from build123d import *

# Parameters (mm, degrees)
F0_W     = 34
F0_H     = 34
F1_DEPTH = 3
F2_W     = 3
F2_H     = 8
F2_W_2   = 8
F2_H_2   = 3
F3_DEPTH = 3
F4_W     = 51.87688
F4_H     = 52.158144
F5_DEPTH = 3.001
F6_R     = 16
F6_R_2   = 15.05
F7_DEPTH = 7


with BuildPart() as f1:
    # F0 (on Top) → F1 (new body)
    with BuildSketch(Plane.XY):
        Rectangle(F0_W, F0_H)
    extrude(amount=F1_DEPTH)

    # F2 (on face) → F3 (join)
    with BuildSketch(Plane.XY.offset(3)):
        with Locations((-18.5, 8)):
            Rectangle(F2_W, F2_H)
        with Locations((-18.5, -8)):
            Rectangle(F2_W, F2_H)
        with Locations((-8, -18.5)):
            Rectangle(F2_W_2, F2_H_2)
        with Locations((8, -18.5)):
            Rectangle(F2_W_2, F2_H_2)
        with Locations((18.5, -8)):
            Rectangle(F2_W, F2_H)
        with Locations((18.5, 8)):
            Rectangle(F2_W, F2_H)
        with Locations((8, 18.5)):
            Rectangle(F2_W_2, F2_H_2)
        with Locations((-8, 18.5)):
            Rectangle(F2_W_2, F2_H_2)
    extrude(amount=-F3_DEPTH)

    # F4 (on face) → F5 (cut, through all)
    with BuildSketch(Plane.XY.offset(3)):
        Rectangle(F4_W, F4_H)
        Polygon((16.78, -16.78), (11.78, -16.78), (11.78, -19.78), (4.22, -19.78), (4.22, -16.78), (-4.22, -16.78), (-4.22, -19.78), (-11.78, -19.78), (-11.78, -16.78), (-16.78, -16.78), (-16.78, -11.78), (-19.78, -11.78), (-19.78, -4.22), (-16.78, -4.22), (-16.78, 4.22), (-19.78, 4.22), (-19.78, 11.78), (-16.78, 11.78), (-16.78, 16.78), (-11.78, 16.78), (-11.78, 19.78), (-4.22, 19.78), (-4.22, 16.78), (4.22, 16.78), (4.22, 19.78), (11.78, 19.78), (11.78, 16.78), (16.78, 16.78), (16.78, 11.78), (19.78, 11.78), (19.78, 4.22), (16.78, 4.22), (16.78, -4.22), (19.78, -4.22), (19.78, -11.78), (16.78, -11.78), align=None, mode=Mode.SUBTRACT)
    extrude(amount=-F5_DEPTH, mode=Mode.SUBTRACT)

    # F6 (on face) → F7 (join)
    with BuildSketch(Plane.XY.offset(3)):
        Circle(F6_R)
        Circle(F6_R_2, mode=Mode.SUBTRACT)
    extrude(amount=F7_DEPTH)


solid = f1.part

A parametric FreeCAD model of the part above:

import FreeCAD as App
import Part
import Sketcher

V = App.Vector

doc = App.newDocument("Part")
params = doc.addObject("Spreadsheet::Sheet", "Params")
for row, (alias, value) in enumerate([
    ("sketch1_width", "34 mm"),
    ("pad1_length", "3 mm"),
    ("sketch2_width", "3 mm"),
    ("sketch2_width2", "8 mm"),
    ("pad2_length", "3 mm"),
    ("sketch3_width", "5 mm"),
    ("sketch3_width2", "3 mm"),
    ("sketch3_width3", "7.56 mm"),
    ("sketch4_diameter", "32 mm"),
    ("sketch4_diameter2", "30.1 mm"),
    ("pad3_length", "7 mm"),
], start=1):
    params.set(f"A{row}", alias)
    params.set(f"B{row}", "=" + value)
    params.setAlias(f"B{row}", alias)

body = doc.addObject("PartDesign::Body", "Body")

# Sketch on XY plane
sketch1 = body.newObject("Sketcher::SketchObject", "Sketch")
sketch1.AttachmentSupport = (doc.getObject("XY_Plane"), [""])
sketch1.MapMode = "FlatFace"
sketch1.addGeometry([
    Part.LineSegment(V(-17, 17, 0), V(-17, -17, 0)),
    Part.LineSegment(V(-17, -17, 0), V(17, -17, 0)),
    Part.LineSegment(V(17, -17, 0), V(17, 17, 0)),
    Part.LineSegment(V(17, 17, 0), V(-17, 17, 0)),
], False)
sketch1.addConstraint([
    Sketcher.Constraint("Coincident", 0, 2, 1, 1),
    Sketcher.Constraint("Coincident", 1, 2, 2, 1),
    Sketcher.Constraint("Coincident", 2, 2, 3, 1),
    Sketcher.Constraint("Coincident", 3, 2, 0, 1),
    Sketcher.Constraint("Vertical", 0),
    Sketcher.Constraint("Horizontal", 1),
    Sketcher.Constraint("Vertical", 2),
    Sketcher.Constraint("Horizontal", 3),
    Sketcher.Constraint("Symmetric", 0, 2, 2, 2, -1, 1),
    Sketcher.Constraint("Equal", 3, 0),
    Sketcher.Constraint("DistanceX", 1, 1, 1, 2, 34.0),
])
sketch1.setExpression("Constraints[10]", "Params.sketch1_width")
pad1 = body.newObject("PartDesign::Pad", "Pad")
pad1.Profile = sketch1
pad1.setExpression("Length", "Params.pad1_length")

# Sketch on XY plane
sketch2 = body.newObject("Sketcher::SketchObject", "Sketch001")
sketch2.AttachmentSupport = (doc.getObject("XY_Plane"), [""])
sketch2.MapMode = "FlatFace"
sketch2.AttachmentOffset = App.Placement(V(0, 0, 3), App.Rotation())
sketch2.addGeometry([
    Part.LineSegment(V(-20, 12, 0), V(-20, 4, 0)),  # 0
    Part.LineSegment(V(-20, 4, 0), V(-17, 4, 0)),  # 1
    Part.LineSegment(V(-17, 4, 0), V(-17, 12, 0)),  # 2
    Part.LineSegment(V(-17, 12, 0), V(-20, 12, 0)),  # 3
    Part.LineSegment(V(-20, -4, 0), V(-20, -12, 0)),  # 4
    Part.LineSegment(V(-20, -12, 0), V(-17, -12, 0)),  # 5
    Part.LineSegment(V(-17, -12, 0), V(-17, -4, 0)),  # 6
    Part.LineSegment(V(-17, -4, 0), V(-20, -4, 0)),  # 7
    Part.LineSegment(V(-12, -17, 0), V(-12, -20, 0)),  # 8
    Part.LineSegment(V(-12, -20, 0), V(-4, -20, 0)),  # 9
    Part.LineSegment(V(-4, -20, 0), V(-4, -17, 0)),  # 10
    Part.LineSegment(V(-4, -17, 0), V(-12, -17, 0)),  # 11
    Part.LineSegment(V(4, -17, 0), V(4, -20, 0)),  # 12
    Part.LineSegment(V(4, -20, 0), V(12, -20, 0)),  # 13
    Part.LineSegment(V(12, -20, 0), V(12, -17, 0)),  # 14
    Part.LineSegment(V(12, -17, 0), V(4, -17, 0)),  # 15
    Part.LineSegment(V(17, -4, 0), V(17, -12, 0)),  # 16
    Part.LineSegment(V(17, -12, 0), V(20, -12, 0)),  # 17
    Part.LineSegment(V(20, -12, 0), V(20, -4, 0)),  # 18
    Part.LineSegment(V(20, -4, 0), V(17, -4, 0)),  # 19
    Part.LineSegment(V(17, 12, 0), V(17, 4, 0)),  # 20
    Part.LineSegment(V(17, 4, 0), V(20, 4, 0)),  # 21
    Part.LineSegment(V(20, 4, 0), V(20, 12, 0)),  # 22
    Part.LineSegment(V(20, 12, 0), V(17, 12, 0)),  # 23
    Part.LineSegment(V(4, 20, 0), V(4, 17, 0)),  # 24
    Part.LineSegment(V(4, 17, 0), V(12, 17, 0)),  # 25
    Part.LineSegment(V(12, 17, 0), V(12, 20, 0)),  # 26
    Part.LineSegment(V(12, 20, 0), V(4, 20, 0)),  # 27
    Part.LineSegment(V(-12, 20, 0), V(-12, 17, 0)),  # 28
    Part.LineSegment(V(-12, 17, 0), V(-4, 17, 0)),  # 29
    Part.LineSegment(V(-4, 17, 0), V(-4, 20, 0)),  # 30
    Part.LineSegment(V(-4, 20, 0), V(-12, 20, 0)),  # 31
], False)
sketch2.addConstraint([
    Sketcher.Constraint("Coincident", 0, 2, 1, 1),
    Sketcher.Constraint("Coincident", 1, 2, 2, 1),
    Sketcher.Constraint("Coincident", 2, 2, 3, 1),
    Sketcher.Constraint("Coincident", 3, 2, 0, 1),
    Sketcher.Constraint("Coincident", 4, 2, 5, 1),
    Sketcher.Constraint("Coincident", 5, 2, 6, 1),
    Sketcher.Constraint("Coincident", 6, 2, 7, 1),
    Sketcher.Constraint("Coincident", 7, 2, 4, 1),
    Sketcher.Constraint("Coincident", 8, 2, 9, 1),
    Sketcher.Constraint("Coincident", 9, 2, 10, 1),
    Sketcher.Constraint("Coincident", 10, 2, 11, 1),
    Sketcher.Constraint("Coincident", 11, 2, 8, 1),
    Sketcher.Constraint("Coincident", 12, 2, 13, 1),
    Sketcher.Constraint("Coincident", 13, 2, 14, 1),
    Sketcher.Constraint("Coincident", 14, 2, 15, 1),
    Sketcher.Constraint("Coincident", 15, 2, 12, 1),
    Sketcher.Constraint("Coincident", 16, 2, 17, 1),
    Sketcher.Constraint("Coincident", 17, 2, 18, 1),
    Sketcher.Constraint("Coincident", 18, 2, 19, 1),
    Sketcher.Constraint("Coincident", 19, 2, 16, 1),
    Sketcher.Constraint("Coincident", 20, 2, 21, 1),
    Sketcher.Constraint("Coincident", 21, 2, 22, 1),
    Sketcher.Constraint("Coincident", 22, 2, 23, 1),
    Sketcher.Constraint("Coincident", 23, 2, 20, 1),
    Sketcher.Constraint("Coincident", 24, 2, 25, 1),
    Sketcher.Constraint("Coincident", 25, 2, 26, 1),
    Sketcher.Constraint("Coincident", 26, 2, 27, 1),
    Sketcher.Constraint("Coincident", 27, 2, 24, 1),
    Sketcher.Constraint("Coincident", 28, 2, 29, 1),
    Sketcher.Constraint("Coincident", 29, 2, 30, 1),
    Sketcher.Constraint("Coincident", 30, 2, 31, 1),
    Sketcher.Constraint("Coincident", 31, 2, 28, 1),
    Sketcher.Constraint("Vertical", 0),
    Sketcher.Constraint("Horizontal", 1),
    Sketcher.Constraint("Vertical", 2),
    Sketcher.Constraint("Horizontal", 3),
    Sketcher.Constraint("Vertical", 4),
    Sketcher.Constraint("Horizontal", 5),
    Sketcher.Constraint("Vertical", 6),
    Sketcher.Constraint("Horizontal", 7),
    Sketcher.Constraint("Vertical", 8),
    Sketcher.Constraint("Horizontal", 9),
    Sketcher.Constraint("Vertical", 10),
    Sketcher.Constraint("Horizontal", 11),
    Sketcher.Constraint("Vertical", 12),
    Sketcher.Constraint("Horizontal", 13),
    Sketcher.Constraint("Vertical", 14),
    Sketcher.Constraint("Horizontal", 15),
    Sketcher.Constraint("Vertical", 16),
    Sketcher.Constraint("Horizontal", 17),
    Sketcher.Constraint("Vertical", 18),
    Sketcher.Constraint("Horizontal", 19),
    Sketcher.Constraint("Vertical", 20),
    Sketcher.Constraint("Horizontal", 21),
    Sketcher.Constraint("Vertical", 22),
    Sketcher.Constraint("Horizontal", 23),
    Sketcher.Constraint("Vertical", 24),
    Sketcher.Constraint("Horizontal", 25),
    Sketcher.Constraint("Vertical", 26),
    Sketcher.Constraint("Horizontal", 27),
    Sketcher.Constraint("Vertical", 28),
    Sketcher.Constraint("Horizontal", 29),
    Sketcher.Constraint("Vertical", 30),
    Sketcher.Constraint("Horizontal", 31),
    Sketcher.Constraint("Symmetric", 2, 2, 16, 2, -1, 1),
    Sketcher.Constraint("Symmetric", 0, 2, 18, 2, -1, 1),
    Sketcher.Constraint("Symmetric", 6, 2, 20, 2, -1, 1),
    Sketcher.Constraint("Symmetric", 4, 2, 22, 2, -1, 1),
    Sketcher.Constraint("Symmetric", 10, 2, 24, 2, -1, 1),
    Sketcher.Constraint("Symmetric", 8, 2, 26, 2, -1, 1),
    Sketcher.Constraint("Symmetric", 14, 2, 28, 2, -1, 1),
    Sketcher.Constraint("Symmetric", 12, 2, 30, 2, -1, 1),
    Sketcher.Constraint("Symmetric", 9, 2, 12, 2, -2),
    Sketcher.Constraint("Symmetric", 11, 2, 14, 2, -2),
    Sketcher.Constraint("Symmetric", 5, 2, 16, 2, -2),
    Sketcher.Constraint("Symmetric", 7, 2, 18, 2, -2),
    Sketcher.Constraint("Equal", 31, 0),
    Sketcher.Constraint("Equal", 23, 8),
    Sketcher.Constraint("DistanceX", 1, 1, 1, 2, 3.0),
    Sketcher.Constraint("DistanceX", 9, 1, 9, 2, 8.0),
    Sketcher.Constraint("DistanceX", 0, 2, -1, 1, 20.0),
    Sketcher.Constraint("DistanceY", -1, 1, 0, 2, 4.0),
    Sketcher.Constraint("DistanceX", 8, 2, -1, 1, 12.0),
    Sketcher.Constraint("DistanceY", 8, 2, -1, 1, 20.0),
])
sketch2.setExpression("Constraints[78]", "Params.sketch2_width")
sketch2.setExpression("Constraints[79]", "Params.sketch2_width2")
pad2 = body.newObject("PartDesign::Pad", "Pad001")
pad2.Profile = sketch2
pad2.setExpression("Length", "Params.pad2_length")
pad2.Reversed = True

# Sketch on XY plane
sketch3 = body.newObject("Sketcher::SketchObject", "Sketch002")
sketch3.AttachmentSupport = (doc.getObject("XY_Plane"), [""])
sketch3.MapMode = "FlatFace"
sketch3.AttachmentOffset = App.Placement(V(0, 0, 3), App.Rotation())
sketch3.addGeometry([
    Part.LineSegment(V(-25.9, 26.1, 0), V(-25.9, -26.1, 0)),  # 0
    Part.LineSegment(V(-25.9, -26.1, 0), V(25.9, -26.1, 0)),  # 1
    Part.LineSegment(V(25.9, -26.1, 0), V(25.9, 26.1, 0)),  # 2
    Part.LineSegment(V(25.9, 26.1, 0), V(-25.9, 26.1, 0)),  # 3
    Part.LineSegment(V(16.8, -11.8, 0), V(16.8, -16.8, 0)),  # 4
    Part.LineSegment(V(16.8, -16.8, 0), V(11.8, -16.8, 0)),  # 5
    Part.LineSegment(V(11.8, -16.8, 0), V(11.8, -19.8, 0)),  # 6
    Part.LineSegment(V(11.8, -19.8, 0), V(4.2, -19.8, 0)),  # 7
    Part.LineSegment(V(4.2, -19.8, 0), V(4.2, -16.8, 0)),  # 8
    Part.LineSegment(V(4.2, -16.8, 0), V(-4.2, -16.8, 0)),  # 9
    Part.LineSegment(V(-4.2, -16.8, 0), V(-4.2, -19.8, 0)),  # 10
    Part.LineSegment(V(-4.2, -19.8, 0), V(-11.8, -19.8, 0)),  # 11
    Part.LineSegment(V(-11.8, -19.8, 0), V(-11.8, -16.8, 0)),  # 12
    Part.LineSegment(V(-11.8, -16.8, 0), V(-16.8, -16.8, 0)),  # 13
    Part.LineSegment(V(-16.8, -16.8, 0), V(-16.8, -11.8, 0)),  # 14
    Part.LineSegment(V(-16.8, -11.8, 0), V(-19.8, -11.8, 0)),  # 15
    Part.LineSegment(V(-19.8, -11.8, 0), V(-19.8, -4.2, 0)),  # 16
    Part.LineSegment(V(-19.8, -4.2, 0), V(-16.8, -4.2, 0)),  # 17
    Part.LineSegment(V(-16.8, -4.2, 0), V(-16.8, 4.2, 0)),  # 18
    Part.LineSegment(V(-16.8, 4.2, 0), V(-19.8, 4.2, 0)),  # 19
    Part.LineSegment(V(-19.8, 4.2, 0), V(-19.8, 11.8, 0)),  # 20
    Part.LineSegment(V(-19.8, 11.8, 0), V(-16.8, 11.8, 0)),  # 21
    Part.LineSegment(V(-16.8, 11.8, 0), V(-16.8, 16.8, 0)),  # 22
    Part.LineSegment(V(-16.8, 16.8, 0), V(-11.8, 16.8, 0)),  # 23
    Part.LineSegment(V(-11.8, 16.8, 0), V(-11.8, 19.8, 0)),  # 24
    Part.LineSegment(V(-11.8, 19.8, 0), V(-4.2, 19.8, 0)),  # 25
    Part.LineSegment(V(-4.2, 19.8, 0), V(-4.2, 16.8, 0)),  # 26
    Part.LineSegment(V(-4.2, 16.8, 0), V(4.2, 16.8, 0)),  # 27
    Part.LineSegment(V(4.2, 16.8, 0), V(4.2, 19.8, 0)),  # 28
    Part.LineSegment(V(4.2, 19.8, 0), V(11.8, 19.8, 0)),  # 29
    Part.LineSegment(V(11.8, 19.8, 0), V(11.8, 16.8, 0)),  # 30
    Part.LineSegment(V(11.8, 16.8, 0), V(16.8, 16.8, 0)),  # 31
    Part.LineSegment(V(16.8, 16.8, 0), V(16.8, 11.8, 0)),  # 32
    Part.LineSegment(V(16.8, 11.8, 0), V(19.8, 11.8, 0)),  # 33
    Part.LineSegment(V(19.8, 11.8, 0), V(19.8, 4.2, 0)),  # 34
    Part.LineSegment(V(19.8, 4.2, 0), V(16.8, 4.2, 0)),  # 35
    Part.LineSegment(V(16.8, 4.2, 0), V(16.8, -4.2, 0)),  # 36
    Part.LineSegment(V(16.8, -4.2, 0), V(19.8, -4.2, 0)),  # 37
    Part.LineSegment(V(19.8, -4.2, 0), V(19.8, -11.8, 0)),  # 38
    Part.LineSegment(V(19.8, -11.8, 0), V(16.8, -11.8, 0)),  # 39
], False)
sketch3.addConstraint([
    Sketcher.Constraint("Coincident", 0, 2, 1, 1),
    Sketcher.Constraint("Coincident", 1, 2, 2, 1),
    Sketcher.Constraint("Coincident", 2, 2, 3, 1),
    Sketcher.Constraint("Coincident", 3, 2, 0, 1),
    Sketcher.Constraint("Coincident", 4, 2, 5, 1),
    Sketcher.Constraint("Coincident", 5, 2, 6, 1),
    Sketcher.Constraint("Coincident", 6, 2, 7, 1),
    Sketcher.Constraint("Coincident", 7, 2, 8, 1),
    Sketcher.Constraint("Coincident", 8, 2, 9, 1),
    Sketcher.Constraint("Coincident", 9, 2, 10, 1),
    Sketcher.Constraint("Coincident", 10, 2, 11, 1),
    Sketcher.Constraint("Coincident", 11, 2, 12, 1),
    Sketcher.Constraint("Coincident", 12, 2, 13, 1),
    Sketcher.Constraint("Coincident", 13, 2, 14, 1),
    Sketcher.Constraint("Coincident", 14, 2, 15, 1),
    Sketcher.Constraint("Coincident", 15, 2, 16, 1),
    Sketcher.Constraint("Coincident", 16, 2, 17, 1),
    Sketcher.Constraint("Coincident", 17, 2, 18, 1),
    Sketcher.Constraint("Coincident", 18, 2, 19, 1),
    Sketcher.Constraint("Coincident", 19, 2, 20, 1),
    Sketcher.Constraint("Coincident", 20, 2, 21, 1),
    Sketcher.Constraint("Coincident", 21, 2, 22, 1),
    Sketcher.Constraint("Coincident", 22, 2, 23, 1),
    Sketcher.Constraint("Coincident", 23, 2, 24, 1),
    Sketcher.Constraint("Coincident", 24, 2, 25, 1),
    Sketcher.Constraint("Coincident", 25, 2, 26, 1),
    Sketcher.Constraint("Coincident", 26, 2, 27, 1),
    Sketcher.Constraint("Coincident", 27, 2, 28, 1),
    Sketcher.Constraint("Coincident", 28, 2, 29, 1),
    Sketcher.Constraint("Coincident", 29, 2, 30, 1),
    Sketcher.Constraint("Coincident", 30, 2, 31, 1),
    Sketcher.Constraint("Coincident", 31, 2, 32, 1),
    Sketcher.Constraint("Coincident", 32, 2, 33, 1),
    Sketcher.Constraint("Coincident", 33, 2, 34, 1),
    Sketcher.Constraint("Coincident", 34, 2, 35, 1),
    Sketcher.Constraint("Coincident", 35, 2, 36, 1),
    Sketcher.Constraint("Coincident", 36, 2, 37, 1),
    Sketcher.Constraint("Coincident", 37, 2, 38, 1),
    Sketcher.Constraint("Coincident", 38, 2, 39, 1),
    Sketcher.Constraint("Coincident", 39, 2, 4, 1),
    Sketcher.Constraint("Vertical", 0),
    Sketcher.Constraint("Horizontal", 1),
    Sketcher.Constraint("Vertical", 2),
    Sketcher.Constraint("Horizontal", 3),
    Sketcher.Constraint("Vertical", 4),
    Sketcher.Constraint("Horizontal", 5),
    Sketcher.Constraint("Vertical", 6),
    Sketcher.Constraint("Horizontal", 7),
    Sketcher.Constraint("Vertical", 8),
    Sketcher.Constraint("Horizontal", 9),
    Sketcher.Constraint("Vertical", 10),
    Sketcher.Constraint("Horizontal", 11),
    Sketcher.Constraint("Vertical", 12),
    Sketcher.Constraint("Horizontal", 13),
    Sketcher.Constraint("Vertical", 14),
    Sketcher.Constraint("Horizontal", 15),
    Sketcher.Constraint("Vertical", 16),
    Sketcher.Constraint("Horizontal", 17),
    Sketcher.Constraint("Vertical", 18),
    Sketcher.Constraint("Horizontal", 19),
    Sketcher.Constraint("Vertical", 20),
    Sketcher.Constraint("Horizontal", 21),
    Sketcher.Constraint("Vertical", 22),
    Sketcher.Constraint("Horizontal", 23),
    Sketcher.Constraint("Vertical", 24),
    Sketcher.Constraint("Horizontal", 25),
    Sketcher.Constraint("Vertical", 26),
    Sketcher.Constraint("Horizontal", 27),
    Sketcher.Constraint("Vertical", 28),
    Sketcher.Constraint("Horizontal", 29),
    Sketcher.Constraint("Vertical", 30),
    Sketcher.Constraint("Horizontal", 31),
    Sketcher.Constraint("Vertical", 32),
    Sketcher.Constraint("Horizontal", 33),
    Sketcher.Constraint("Vertical", 34),
    Sketcher.Constraint("Horizontal", 35),
    Sketcher.Constraint("Vertical", 36),
    Sketcher.Constraint("Horizontal", 37),
    Sketcher.Constraint("Vertical", 38),
    Sketcher.Constraint("Horizontal", 39),
    Sketcher.Constraint("Symmetric", 0, 2, 2, 2, -1, 1),
    Sketcher.Constraint("Symmetric", 4, 2, 22, 2, -1, 1),
    Sketcher.Constraint("Symmetric", 6, 2, 24, 2, -1, 1),
    Sketcher.Constraint("Symmetric", 8, 2, 26, 2, -1, 1),
    Sketcher.Constraint("Symmetric", 10, 2, 28, 2, -1, 1),
    Sketcher.Constraint("Symmetric", 12, 2, 30, 2, -1, 1),
    Sketcher.Constraint("Symmetric", 14, 2, 32, 2, -1, 1),
    Sketcher.Constraint("Symmetric", 16, 2, 34, 2, -1, 1),
    Sketcher.Constraint("Symmetric", 18, 2, 36, 2, -1, 1),
    Sketcher.Constraint("Symmetric", 20, 2, 38, 2, -1, 1),
    Sketcher.Constraint("Symmetric", 7, 2, 10, 2, -2),
    Sketcher.Constraint("Symmetric", 5, 2, 12, 2, -2),
    Sketcher.Constraint("Symmetric", 21, 2, 32, 2, -2),
    Sketcher.Constraint("Symmetric", 19, 2, 34, 2, -2),
    Sketcher.Constraint("Horizontal", 5, 2, 8, 2),
    Sketcher.Constraint("Vertical", 14, 2, 17, 2),
    Sketcher.Constraint("Equal", 31, 4),
    Sketcher.Constraint("Equal", 39, 6),
    Sketcher.Constraint("Equal", 29, 16),
    Sketcher.Constraint("Equal", 27, 18),
    Sketcher.Constraint("DistanceX", 5, 2, 5, 1, 5.0),
    Sketcher.Constraint("DistanceX", 15, 2, 15, 1, 3.0),
    Sketcher.Constraint("DistanceX", 9, 2, 5, 2, 16.0),
    Sketcher.Constraint("DistanceX", 7, 2, 7, 1, 7.56),
    Sketcher.Constraint("DistanceX", 1, 1, 1, 2, 51.87688),
    Sketcher.Constraint("DistanceY", 0, 2, 0, 1, 52.158144),
])
sketch3.setExpression("Constraints[100]", "Params.sketch3_width")
sketch3.setExpression("Constraints[101]", "Params.sketch3_width2")
sketch3.setExpression("Constraints[103]", "Params.sketch3_width3")
pocket1 = body.newObject("PartDesign::Pocket", "Pocket")
pocket1.Profile = sketch3
pocket1.Type = "ThroughAll"

# Sketch on XY plane
sketch4 = body.newObject("Sketcher::SketchObject", "Sketch003")
sketch4.AttachmentSupport = (doc.getObject("XY_Plane"), [""])
sketch4.MapMode = "FlatFace"
sketch4.AttachmentOffset = App.Placement(V(0, 0, 3), App.Rotation())
sketch4.addGeometry([
    Part.Circle(V(0, 0, 0), V(0, 0, 1), 16),
    Part.Circle(V(0, 0, 0), V(0, 0, 1), 15),
], False)
sketch4.addConstraint([
    Sketcher.Constraint("Coincident", 0, 3, -1, 1),
    Sketcher.Constraint("Coincident", 1, 3, -1, 1),
    Sketcher.Constraint("Diameter", 0, 32.0),
    Sketcher.Constraint("Diameter", 1, 30.1),
])
sketch4.setExpression("Constraints[2]", "Params.sketch4_diameter")
sketch4.setExpression("Constraints[3]", "Params.sketch4_diameter2")
pad3 = body.newObject("PartDesign::Pad", "Pad002")
pad3.Profile = sketch4
pad3.setExpression("Length", "Params.pad3_length")

doc.recompute()
